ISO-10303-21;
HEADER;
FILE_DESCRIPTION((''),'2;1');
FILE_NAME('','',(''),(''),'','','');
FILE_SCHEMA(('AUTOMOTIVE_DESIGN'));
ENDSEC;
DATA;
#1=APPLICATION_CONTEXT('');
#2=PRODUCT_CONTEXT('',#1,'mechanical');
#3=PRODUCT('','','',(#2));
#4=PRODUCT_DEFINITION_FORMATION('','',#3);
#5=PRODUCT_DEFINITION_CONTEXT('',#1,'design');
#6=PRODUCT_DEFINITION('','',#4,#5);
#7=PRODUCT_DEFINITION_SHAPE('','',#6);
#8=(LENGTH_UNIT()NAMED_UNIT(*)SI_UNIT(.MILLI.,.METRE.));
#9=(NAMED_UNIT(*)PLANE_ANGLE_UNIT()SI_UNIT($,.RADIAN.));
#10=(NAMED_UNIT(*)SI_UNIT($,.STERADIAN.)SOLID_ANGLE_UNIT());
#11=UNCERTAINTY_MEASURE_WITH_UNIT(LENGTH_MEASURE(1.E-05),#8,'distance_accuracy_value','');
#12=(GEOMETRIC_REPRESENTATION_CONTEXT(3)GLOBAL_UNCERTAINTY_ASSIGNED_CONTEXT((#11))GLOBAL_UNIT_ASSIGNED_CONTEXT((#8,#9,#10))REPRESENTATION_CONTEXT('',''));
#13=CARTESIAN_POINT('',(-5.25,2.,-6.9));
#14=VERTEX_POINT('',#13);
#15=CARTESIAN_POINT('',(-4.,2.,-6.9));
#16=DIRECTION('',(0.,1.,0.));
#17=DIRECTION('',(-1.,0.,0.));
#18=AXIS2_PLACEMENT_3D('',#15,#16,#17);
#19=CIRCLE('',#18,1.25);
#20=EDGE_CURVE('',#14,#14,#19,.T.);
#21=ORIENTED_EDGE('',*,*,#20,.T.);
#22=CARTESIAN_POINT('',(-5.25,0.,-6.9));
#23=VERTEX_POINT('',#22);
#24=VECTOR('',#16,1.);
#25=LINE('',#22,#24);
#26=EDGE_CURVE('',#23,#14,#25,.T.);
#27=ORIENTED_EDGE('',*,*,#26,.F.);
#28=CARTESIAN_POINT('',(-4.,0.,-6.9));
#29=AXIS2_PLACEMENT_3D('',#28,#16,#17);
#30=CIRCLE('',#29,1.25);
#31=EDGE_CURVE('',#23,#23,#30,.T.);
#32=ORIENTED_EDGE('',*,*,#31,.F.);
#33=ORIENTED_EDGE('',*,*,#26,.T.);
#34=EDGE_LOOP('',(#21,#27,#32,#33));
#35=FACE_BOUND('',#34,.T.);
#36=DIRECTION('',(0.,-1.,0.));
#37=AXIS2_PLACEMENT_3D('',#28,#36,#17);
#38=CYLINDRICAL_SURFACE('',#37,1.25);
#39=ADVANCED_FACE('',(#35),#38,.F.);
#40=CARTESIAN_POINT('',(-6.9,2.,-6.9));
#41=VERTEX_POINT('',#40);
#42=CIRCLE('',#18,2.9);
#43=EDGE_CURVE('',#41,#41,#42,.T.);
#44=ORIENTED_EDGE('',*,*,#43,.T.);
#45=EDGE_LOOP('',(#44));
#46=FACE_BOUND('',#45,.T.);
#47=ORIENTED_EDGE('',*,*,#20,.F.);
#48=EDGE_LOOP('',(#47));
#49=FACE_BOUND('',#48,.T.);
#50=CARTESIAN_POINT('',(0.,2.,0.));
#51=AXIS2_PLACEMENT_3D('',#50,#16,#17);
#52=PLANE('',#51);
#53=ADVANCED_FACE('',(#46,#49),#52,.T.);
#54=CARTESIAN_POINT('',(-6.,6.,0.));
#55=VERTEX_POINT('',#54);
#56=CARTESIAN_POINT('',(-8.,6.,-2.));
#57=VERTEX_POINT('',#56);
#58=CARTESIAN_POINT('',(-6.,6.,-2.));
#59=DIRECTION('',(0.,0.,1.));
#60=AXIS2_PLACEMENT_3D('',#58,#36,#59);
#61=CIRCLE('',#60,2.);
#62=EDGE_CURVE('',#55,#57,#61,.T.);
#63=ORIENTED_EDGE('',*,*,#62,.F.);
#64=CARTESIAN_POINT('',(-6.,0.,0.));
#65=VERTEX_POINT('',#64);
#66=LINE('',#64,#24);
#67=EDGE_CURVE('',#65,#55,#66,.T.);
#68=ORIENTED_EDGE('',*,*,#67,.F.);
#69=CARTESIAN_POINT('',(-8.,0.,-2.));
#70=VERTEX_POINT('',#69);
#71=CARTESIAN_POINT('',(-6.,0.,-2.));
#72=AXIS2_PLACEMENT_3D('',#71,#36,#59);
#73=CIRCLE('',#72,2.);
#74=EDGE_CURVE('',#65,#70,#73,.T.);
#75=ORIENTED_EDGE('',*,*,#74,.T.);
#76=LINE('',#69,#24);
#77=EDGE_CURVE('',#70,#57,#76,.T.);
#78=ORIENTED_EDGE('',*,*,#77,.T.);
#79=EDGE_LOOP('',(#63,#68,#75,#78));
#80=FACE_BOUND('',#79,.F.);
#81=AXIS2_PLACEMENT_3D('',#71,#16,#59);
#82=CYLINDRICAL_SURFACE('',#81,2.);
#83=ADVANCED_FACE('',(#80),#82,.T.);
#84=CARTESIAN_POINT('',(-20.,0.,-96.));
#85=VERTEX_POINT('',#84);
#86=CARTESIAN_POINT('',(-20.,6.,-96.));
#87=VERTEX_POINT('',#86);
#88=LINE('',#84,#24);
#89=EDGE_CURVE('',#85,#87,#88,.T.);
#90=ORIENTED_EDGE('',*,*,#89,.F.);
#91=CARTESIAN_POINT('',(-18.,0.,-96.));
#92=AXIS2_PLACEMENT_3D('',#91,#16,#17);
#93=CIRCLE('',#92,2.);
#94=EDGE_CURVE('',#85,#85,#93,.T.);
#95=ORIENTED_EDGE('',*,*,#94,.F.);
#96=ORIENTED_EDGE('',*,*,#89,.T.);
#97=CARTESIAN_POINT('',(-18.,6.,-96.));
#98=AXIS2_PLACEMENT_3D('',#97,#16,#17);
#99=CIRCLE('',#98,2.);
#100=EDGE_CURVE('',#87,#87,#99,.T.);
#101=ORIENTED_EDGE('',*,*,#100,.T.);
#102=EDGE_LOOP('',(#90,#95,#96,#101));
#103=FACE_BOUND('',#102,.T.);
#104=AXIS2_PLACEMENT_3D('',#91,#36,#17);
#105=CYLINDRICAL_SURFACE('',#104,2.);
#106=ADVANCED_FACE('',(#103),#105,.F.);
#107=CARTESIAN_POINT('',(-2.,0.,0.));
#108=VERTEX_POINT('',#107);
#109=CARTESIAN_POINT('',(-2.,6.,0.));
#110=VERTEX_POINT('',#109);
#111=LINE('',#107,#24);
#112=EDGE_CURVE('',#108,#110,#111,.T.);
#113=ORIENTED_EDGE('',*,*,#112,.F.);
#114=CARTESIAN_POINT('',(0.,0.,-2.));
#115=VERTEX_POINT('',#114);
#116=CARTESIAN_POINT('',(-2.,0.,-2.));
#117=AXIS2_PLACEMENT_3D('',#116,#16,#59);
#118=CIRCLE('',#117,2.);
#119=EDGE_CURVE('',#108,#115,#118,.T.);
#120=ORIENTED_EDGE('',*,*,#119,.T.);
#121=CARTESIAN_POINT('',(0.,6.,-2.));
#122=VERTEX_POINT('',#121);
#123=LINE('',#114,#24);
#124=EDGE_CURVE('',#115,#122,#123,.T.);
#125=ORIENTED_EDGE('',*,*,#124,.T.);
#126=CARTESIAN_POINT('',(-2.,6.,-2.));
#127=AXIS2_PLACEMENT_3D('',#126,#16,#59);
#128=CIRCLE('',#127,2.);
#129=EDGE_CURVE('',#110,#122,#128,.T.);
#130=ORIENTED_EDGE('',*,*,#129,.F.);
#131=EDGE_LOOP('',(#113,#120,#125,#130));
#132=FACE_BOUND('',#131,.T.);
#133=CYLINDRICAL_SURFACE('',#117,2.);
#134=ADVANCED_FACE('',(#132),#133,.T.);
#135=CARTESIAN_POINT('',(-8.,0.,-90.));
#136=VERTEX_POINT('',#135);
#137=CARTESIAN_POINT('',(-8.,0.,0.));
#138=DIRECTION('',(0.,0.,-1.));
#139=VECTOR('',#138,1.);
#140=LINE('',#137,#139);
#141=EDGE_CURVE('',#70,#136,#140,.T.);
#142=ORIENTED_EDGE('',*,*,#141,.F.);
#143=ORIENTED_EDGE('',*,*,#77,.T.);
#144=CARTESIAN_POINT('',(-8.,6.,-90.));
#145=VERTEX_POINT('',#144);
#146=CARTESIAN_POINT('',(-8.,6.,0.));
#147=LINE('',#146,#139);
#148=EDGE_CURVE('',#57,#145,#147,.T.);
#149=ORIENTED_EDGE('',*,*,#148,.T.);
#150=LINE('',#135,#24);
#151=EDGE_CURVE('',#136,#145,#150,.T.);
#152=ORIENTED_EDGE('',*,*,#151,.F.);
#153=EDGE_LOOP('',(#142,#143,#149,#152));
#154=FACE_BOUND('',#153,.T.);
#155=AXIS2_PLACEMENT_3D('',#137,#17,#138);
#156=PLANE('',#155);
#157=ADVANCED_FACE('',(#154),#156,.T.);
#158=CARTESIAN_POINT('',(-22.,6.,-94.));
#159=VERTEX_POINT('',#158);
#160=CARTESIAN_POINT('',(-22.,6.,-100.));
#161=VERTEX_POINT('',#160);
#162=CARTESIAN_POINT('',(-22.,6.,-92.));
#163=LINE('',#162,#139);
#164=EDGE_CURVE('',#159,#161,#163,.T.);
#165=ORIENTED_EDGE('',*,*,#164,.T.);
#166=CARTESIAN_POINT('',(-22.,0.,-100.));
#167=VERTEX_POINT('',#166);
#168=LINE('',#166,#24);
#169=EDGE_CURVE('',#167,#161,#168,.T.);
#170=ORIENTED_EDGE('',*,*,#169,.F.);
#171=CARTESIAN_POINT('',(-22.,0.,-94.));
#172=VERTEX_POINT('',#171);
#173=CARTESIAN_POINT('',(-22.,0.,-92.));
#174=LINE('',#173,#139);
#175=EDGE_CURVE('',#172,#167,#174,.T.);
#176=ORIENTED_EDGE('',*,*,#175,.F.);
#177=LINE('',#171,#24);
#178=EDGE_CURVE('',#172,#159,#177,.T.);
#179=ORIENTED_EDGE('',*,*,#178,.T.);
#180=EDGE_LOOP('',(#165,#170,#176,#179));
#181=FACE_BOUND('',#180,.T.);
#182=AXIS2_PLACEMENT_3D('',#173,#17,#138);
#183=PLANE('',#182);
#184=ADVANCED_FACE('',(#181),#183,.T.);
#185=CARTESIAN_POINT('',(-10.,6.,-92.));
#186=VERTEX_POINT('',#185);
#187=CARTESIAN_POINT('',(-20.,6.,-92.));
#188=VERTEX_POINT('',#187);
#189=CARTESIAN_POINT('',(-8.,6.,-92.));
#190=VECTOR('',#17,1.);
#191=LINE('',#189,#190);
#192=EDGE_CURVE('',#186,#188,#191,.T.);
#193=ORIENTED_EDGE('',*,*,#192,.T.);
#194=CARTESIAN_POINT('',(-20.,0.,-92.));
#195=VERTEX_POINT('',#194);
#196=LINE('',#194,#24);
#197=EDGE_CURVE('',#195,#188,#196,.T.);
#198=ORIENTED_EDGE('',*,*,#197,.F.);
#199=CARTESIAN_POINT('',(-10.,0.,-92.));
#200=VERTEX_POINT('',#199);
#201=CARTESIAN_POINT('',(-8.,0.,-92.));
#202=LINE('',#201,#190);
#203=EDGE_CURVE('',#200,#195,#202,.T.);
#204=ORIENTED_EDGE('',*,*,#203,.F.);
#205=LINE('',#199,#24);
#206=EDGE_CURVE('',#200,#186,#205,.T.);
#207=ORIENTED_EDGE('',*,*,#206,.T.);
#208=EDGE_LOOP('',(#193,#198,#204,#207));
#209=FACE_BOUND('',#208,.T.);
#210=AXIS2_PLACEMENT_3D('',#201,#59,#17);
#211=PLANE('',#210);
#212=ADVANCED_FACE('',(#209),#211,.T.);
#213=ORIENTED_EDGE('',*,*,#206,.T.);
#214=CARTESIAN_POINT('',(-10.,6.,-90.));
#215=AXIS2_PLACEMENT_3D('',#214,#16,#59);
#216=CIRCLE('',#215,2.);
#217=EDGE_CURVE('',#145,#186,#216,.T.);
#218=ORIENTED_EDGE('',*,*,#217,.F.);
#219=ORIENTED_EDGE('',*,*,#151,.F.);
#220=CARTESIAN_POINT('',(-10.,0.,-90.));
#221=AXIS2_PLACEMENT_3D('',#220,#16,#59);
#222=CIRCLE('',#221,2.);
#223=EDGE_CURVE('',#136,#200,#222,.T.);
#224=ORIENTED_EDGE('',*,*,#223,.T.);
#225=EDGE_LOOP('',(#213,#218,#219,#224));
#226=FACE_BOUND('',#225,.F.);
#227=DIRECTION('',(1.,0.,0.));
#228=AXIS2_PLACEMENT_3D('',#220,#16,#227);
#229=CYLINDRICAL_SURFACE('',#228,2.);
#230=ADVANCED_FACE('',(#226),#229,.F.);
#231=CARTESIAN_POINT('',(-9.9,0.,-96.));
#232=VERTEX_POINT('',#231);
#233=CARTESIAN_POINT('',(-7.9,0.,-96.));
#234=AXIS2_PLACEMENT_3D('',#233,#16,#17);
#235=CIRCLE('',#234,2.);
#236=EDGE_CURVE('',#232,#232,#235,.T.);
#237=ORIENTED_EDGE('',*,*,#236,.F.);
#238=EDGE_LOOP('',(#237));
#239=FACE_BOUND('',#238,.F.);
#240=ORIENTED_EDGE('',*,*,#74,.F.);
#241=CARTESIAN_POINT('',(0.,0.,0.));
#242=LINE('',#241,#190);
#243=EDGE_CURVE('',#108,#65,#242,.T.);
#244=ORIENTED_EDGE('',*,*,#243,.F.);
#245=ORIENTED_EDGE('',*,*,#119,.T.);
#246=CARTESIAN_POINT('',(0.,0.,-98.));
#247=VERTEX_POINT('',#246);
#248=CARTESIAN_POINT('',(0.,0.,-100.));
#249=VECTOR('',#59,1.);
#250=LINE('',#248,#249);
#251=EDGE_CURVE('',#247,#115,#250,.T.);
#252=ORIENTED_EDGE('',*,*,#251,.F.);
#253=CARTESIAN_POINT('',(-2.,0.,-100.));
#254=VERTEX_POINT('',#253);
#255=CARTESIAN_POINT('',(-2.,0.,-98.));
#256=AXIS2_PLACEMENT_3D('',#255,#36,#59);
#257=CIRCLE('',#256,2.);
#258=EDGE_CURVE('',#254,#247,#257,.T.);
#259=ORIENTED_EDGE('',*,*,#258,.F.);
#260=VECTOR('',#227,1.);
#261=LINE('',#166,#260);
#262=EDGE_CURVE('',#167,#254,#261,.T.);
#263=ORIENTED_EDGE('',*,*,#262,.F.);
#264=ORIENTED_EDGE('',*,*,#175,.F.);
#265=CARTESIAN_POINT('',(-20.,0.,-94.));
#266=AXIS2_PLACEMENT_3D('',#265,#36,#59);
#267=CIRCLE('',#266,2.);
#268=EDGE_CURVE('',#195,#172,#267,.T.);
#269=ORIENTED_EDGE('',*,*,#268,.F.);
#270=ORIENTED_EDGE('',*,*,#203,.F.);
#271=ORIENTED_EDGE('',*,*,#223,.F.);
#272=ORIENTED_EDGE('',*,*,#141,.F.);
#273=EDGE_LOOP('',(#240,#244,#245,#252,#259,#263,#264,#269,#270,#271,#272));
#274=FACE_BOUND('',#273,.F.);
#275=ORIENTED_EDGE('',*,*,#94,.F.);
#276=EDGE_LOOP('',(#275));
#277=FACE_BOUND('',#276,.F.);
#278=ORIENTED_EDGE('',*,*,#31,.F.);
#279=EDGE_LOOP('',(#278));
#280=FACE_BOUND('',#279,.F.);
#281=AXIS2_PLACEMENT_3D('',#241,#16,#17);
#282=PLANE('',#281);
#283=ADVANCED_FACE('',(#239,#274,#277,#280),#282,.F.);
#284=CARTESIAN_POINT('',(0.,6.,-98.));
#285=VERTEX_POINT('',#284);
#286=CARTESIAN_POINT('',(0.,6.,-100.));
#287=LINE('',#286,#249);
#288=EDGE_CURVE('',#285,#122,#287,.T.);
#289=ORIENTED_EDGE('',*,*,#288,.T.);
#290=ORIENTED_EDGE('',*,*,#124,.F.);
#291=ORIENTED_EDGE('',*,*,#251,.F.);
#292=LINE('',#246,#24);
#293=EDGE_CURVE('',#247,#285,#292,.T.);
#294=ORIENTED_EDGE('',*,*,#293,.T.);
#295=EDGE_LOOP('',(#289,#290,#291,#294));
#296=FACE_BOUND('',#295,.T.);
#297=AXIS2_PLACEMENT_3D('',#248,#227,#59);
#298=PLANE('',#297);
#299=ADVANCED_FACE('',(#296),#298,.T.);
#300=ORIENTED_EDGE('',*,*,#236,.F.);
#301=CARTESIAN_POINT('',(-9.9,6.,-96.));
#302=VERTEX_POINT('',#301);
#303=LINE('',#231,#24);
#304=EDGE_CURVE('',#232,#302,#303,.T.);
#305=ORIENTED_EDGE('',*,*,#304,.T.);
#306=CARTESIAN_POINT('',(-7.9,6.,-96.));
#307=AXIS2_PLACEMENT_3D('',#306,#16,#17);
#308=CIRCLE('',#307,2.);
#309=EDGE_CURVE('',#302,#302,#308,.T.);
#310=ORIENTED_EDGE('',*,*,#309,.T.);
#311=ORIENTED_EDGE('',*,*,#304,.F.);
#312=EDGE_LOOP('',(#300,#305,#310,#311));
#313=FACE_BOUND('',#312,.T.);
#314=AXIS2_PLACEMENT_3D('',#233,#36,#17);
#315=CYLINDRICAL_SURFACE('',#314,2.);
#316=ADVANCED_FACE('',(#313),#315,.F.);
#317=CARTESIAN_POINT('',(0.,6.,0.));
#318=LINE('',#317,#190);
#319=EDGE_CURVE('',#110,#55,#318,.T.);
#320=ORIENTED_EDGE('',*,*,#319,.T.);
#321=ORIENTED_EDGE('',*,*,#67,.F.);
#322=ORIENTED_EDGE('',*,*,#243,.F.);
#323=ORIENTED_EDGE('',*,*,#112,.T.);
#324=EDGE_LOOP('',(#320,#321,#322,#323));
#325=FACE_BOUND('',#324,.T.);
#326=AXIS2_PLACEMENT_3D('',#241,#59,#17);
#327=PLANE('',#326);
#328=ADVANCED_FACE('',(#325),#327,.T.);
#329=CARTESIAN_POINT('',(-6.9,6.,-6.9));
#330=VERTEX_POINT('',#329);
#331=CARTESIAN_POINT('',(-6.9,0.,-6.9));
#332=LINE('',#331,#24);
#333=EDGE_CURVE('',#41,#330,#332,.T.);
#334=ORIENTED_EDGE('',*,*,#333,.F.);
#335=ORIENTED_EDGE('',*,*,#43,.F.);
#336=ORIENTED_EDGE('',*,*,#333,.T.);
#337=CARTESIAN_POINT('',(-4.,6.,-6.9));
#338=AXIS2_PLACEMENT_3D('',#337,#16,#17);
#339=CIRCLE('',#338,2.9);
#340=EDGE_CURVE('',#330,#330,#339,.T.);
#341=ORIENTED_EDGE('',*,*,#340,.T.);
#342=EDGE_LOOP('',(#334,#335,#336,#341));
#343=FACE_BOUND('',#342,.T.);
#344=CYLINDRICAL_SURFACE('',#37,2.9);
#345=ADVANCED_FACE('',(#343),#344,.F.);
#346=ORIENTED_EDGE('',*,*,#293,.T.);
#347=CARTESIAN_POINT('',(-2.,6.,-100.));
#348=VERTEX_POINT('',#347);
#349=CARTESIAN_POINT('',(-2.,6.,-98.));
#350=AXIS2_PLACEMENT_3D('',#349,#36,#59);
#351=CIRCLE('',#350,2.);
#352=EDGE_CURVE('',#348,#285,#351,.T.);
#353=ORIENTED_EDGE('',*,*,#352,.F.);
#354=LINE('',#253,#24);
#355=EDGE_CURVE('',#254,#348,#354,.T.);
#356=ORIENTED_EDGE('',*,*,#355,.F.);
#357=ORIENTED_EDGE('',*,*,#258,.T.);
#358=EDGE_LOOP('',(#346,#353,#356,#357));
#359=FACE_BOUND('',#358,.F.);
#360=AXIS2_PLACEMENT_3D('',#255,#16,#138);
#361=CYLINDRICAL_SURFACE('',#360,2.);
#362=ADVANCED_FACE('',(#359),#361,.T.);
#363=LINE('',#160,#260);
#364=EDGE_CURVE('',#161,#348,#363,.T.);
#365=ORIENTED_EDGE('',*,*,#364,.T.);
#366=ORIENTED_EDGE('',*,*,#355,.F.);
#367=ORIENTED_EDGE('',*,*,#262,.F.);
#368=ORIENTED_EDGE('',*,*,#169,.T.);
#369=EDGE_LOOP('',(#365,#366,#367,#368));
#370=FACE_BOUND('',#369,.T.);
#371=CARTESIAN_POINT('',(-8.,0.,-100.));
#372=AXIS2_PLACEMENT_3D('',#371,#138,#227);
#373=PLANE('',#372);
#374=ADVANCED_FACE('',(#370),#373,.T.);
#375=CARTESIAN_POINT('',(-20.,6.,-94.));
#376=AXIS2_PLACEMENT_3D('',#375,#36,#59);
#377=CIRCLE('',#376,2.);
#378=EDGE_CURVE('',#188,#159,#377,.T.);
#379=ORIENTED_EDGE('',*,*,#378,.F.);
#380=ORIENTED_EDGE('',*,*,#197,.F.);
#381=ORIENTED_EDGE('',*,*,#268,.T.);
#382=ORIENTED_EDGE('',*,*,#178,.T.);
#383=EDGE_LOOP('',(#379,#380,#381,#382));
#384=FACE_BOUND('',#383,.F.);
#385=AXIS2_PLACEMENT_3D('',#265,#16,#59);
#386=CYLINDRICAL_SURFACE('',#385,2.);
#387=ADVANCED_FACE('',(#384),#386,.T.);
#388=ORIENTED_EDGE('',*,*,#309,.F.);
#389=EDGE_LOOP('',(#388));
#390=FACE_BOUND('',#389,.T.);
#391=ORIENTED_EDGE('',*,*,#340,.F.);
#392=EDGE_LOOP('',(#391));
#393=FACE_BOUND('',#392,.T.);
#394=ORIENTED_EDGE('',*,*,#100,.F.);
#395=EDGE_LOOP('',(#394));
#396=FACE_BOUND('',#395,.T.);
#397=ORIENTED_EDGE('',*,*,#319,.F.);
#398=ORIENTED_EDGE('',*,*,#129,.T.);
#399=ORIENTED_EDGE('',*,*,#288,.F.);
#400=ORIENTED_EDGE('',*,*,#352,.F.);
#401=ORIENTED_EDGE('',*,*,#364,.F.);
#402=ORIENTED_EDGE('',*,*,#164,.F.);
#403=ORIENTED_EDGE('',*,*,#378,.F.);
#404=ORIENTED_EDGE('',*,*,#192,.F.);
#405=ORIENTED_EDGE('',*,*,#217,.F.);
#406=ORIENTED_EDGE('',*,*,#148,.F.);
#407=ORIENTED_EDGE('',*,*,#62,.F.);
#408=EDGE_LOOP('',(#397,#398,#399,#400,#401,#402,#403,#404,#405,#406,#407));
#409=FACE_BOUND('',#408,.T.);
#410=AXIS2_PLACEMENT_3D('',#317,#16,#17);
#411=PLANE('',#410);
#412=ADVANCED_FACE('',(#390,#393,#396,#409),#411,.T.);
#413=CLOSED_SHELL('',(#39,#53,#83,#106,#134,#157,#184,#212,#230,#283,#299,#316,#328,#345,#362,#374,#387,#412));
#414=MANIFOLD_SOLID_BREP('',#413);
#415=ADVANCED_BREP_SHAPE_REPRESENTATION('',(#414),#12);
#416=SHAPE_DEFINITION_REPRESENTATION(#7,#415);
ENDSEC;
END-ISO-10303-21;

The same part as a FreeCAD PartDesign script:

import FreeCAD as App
import Part
import Sketcher
Q = App.Units.Quantity


def edges_at(feature, points):
    """Names of the edges that pass closest to the given points."""
    edges = feature.Shape.Edges
    near = lambda p: min(range(len(edges)), key=lambda i: edges[i].distToShape(Part.Vertex(*p))[0])
    return sorted({f"Edge{near(p) + 1}" for p in points})


def add_polygon(sketch, points):
    """Adds a closed chain of lines whose ends are joined by coincident constraints."""
    first, n = sketch.GeometryCount, len(points)
    for a, b in zip(points, points[1:] + points[:1]):
        sketch.addGeometry(Part.LineSegment(App.Vector(*a, 0), App.Vector(*b, 0)), False)
    for i in range(n):
        sketch.addConstraint(Sketcher.Constraint("Coincident", first + i, 2, first + (i + 1) % n, 1))

doc = App.newDocument("Part")
body = doc.addObject("PartDesign::Body", "Body")

sketch1 = doc.addObject("Sketcher::SketchObject", "Sketch")
body.addObject(sketch1)
sketch1.AttachmentSupport = (doc.XZ_Plane, [""])
sketch1.MapMode = "FlatFace"
add_polygon(sketch1, [(-8, 0), (0, 0), (0, -100), (-22, -100), (-22, -92), (-8, -92)])
sketch1.addGeometry(Part.Circle(App.Vector(-7.9, -96, 0), App.Vector(0, 0, 1), 2), False)
sketch1.addGeometry(Part.Circle(App.Vector(-18, -96, 0), App.Vector(0, 0, 1), 2), False)
sketch1.addGeometry(Part.Circle(App.Vector(-4, -6.9, 0), App.Vector(0, 0, 1), 2.9), False)
sketch1.addConstraint(Sketcher.Constraint("Horizontal", 0))
sketch1.addConstraint(Sketcher.Constraint("Vertical", 1))
sketch1.addConstraint(Sketcher.Constraint("Horizontal", 2))
sketch1.addConstraint(Sketcher.Constraint("Vertical", 3))
sketch1.addConstraint(Sketcher.Constraint("Horizontal", 4))
sketch1.addConstraint(Sketcher.Constraint("Vertical", 5))
sketch1.addConstraint(Sketcher.Constraint("Coincident", 0, 2, -1, 1))
sketch1.addConstraint(Sketcher.Constraint("Equal", 6, 7))
sketch1.addConstraint(Sketcher.Constraint("Horizontal", 6, 3, 7, 3))
sketch1.addConstraint(Sketcher.Constraint("Equal", 0, 3))
sketch1.addConstraint(Sketcher.Constraint("Diameter", 6, Q("4 mm")))
sketch1.addConstraint(Sketcher.Constraint("Diameter", 8, Q("5.8 mm")))
sketch1.addConstraint(Sketcher.Constraint("DistanceX", 0, 1, 0, 2, Q("8 mm")))
sketch1.addConstraint(Sketcher.Constraint("DistanceX", 2, 2, 2, 1, Q("22 mm")))
sketch1.addConstraint(Sketcher.Constraint("DistanceY", 1, 2, 1, 1, Q("100 mm")))
sketch1.addConstraint(Sketcher.Constraint("DistanceX", 8, 3, -1, 1, Q("4 mm")))
sketch1.addConstraint(Sketcher.Constraint("DistanceY", 1, 2, 6, 3, Q("4 mm")))
sketch1.addConstraint(Sketcher.Constraint("DistanceX", 2, 2, 7, 3, Q("4 mm")))
sketch1.addConstraint(Sketcher.Constraint("DistanceX", 7, 3, 6, 3, Q("10.1 mm")))
sketch1.addConstraint(Sketcher.Constraint("DistanceY", 8, 3, -1, 1, Q("6.9 mm")))
pad1 = doc.addObject("PartDesign::Pad", "Pad")
body.addObject(pad1)
pad1.Profile = sketch1
pad1.Length = 6
pad1.Reversed = True
doc.recompute()

fillet = doc.addObject("PartDesign::Fillet", "Fillet")
body.addObject(fillet)
fillet.Base = (pad1, edges_at(pad1, [
    (-8, 3, 0),
    (0, 3, 0),
    (-8, 3, -92),
    (0, 3, -100),
    (-22, 3, -92),
]))
fillet.Radius = 2

sketch2 = doc.addObject("Sketcher::SketchObject", "Sketch001")
body.addObject(sketch2)
sketch2.AttachmentSupport = (doc.XZ_Plane, [""])
sketch2.MapMode = "FlatFace"
sketch2.addGeometry(Part.Circle(App.Vector(-4, -6.9, 0), App.Vector(0, 0, 1), 2.9), False)
sketch2.addGeometry(Part.Circle(App.Vector(-4, -6.9, 0), App.Vector(0, 0, 1), 1.2), False)
sketch2.addConstraint(Sketcher.Constraint("Coincident", 1, 3, 0, 3))
sketch2.addConstraint(Sketcher.Constraint("Diameter", 0, Q("5.8 mm")))
sketch2.addConstraint(Sketcher.Constraint("Diameter", 1, Q("2.5 mm")))
sketch2.addConstraint(Sketcher.Constraint("DistanceX", 0, 3, -1, 1, Q("4 mm")))
sketch2.addConstraint(Sketcher.Constraint("DistanceY", 0, 3, -1, 1, Q("6.9 mm")))
pad2 = doc.addObject("PartDesign::Pad", "Pad001")
body.addObject(pad2)
pad2.Profile = sketch2
pad2.Length = 2
pad2.Reversed = True

doc.recompute()
